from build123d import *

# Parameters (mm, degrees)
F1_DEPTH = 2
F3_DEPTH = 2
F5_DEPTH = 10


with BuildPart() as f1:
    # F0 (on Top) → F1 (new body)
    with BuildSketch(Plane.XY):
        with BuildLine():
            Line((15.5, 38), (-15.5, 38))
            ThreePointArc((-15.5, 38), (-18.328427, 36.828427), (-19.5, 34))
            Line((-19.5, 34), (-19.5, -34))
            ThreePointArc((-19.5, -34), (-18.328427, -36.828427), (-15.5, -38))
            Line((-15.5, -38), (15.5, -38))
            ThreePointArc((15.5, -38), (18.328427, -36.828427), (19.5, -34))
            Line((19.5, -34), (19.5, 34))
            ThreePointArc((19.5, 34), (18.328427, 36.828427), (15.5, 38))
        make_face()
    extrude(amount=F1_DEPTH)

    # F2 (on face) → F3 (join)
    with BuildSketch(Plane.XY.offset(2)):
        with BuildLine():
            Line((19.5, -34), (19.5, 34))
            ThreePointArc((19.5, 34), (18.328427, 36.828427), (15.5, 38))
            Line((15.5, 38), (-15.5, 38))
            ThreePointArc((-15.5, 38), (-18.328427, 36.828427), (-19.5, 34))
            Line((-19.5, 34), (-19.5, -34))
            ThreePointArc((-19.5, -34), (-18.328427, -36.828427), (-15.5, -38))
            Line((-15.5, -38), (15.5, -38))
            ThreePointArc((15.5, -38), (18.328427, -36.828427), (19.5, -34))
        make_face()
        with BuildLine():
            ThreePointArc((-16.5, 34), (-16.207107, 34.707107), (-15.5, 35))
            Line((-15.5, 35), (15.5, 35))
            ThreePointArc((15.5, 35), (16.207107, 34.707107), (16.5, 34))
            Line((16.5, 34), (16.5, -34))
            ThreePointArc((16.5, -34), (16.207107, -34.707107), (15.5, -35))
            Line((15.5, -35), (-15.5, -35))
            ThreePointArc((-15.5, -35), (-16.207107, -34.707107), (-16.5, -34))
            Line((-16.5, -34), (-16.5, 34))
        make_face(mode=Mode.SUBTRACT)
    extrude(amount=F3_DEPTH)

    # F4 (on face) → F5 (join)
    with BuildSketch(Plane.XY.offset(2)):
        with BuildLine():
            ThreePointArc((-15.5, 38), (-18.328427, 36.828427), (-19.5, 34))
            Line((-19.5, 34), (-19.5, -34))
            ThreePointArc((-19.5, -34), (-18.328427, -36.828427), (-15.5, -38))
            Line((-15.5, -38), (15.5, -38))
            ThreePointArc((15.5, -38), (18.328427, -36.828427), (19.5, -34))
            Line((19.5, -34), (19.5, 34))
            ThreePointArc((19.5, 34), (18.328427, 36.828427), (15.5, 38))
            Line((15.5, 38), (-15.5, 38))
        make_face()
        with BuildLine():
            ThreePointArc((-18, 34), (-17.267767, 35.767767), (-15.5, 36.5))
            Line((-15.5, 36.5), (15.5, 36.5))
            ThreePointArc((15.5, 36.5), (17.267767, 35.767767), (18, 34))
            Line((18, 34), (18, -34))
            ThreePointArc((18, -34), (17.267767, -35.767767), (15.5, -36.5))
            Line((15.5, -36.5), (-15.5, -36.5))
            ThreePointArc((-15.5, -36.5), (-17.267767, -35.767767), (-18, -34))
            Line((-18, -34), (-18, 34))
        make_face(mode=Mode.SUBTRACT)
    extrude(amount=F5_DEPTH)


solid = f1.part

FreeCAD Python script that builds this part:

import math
import FreeCAD as App
import Part
import Sketcher
from FreeCAD import Vector
Q = App.Units.Quantity

doc = App.newDocument("Part")
params = doc.addObject("Spreadsheet::Sheet", "Params")
for row, (alias, value) in enumerate([
    ("sketch1_radius", "4 mm"),
    ("sketch1_width", "31 mm"),
    ("sketch1_height", "68 mm"),
    ("pad1_length", "2 mm"),
    ("sketch2_radius", "4 mm"),
    ("sketch2_radius2", "0.999999 mm"),
    ("sketch2_width", "31 mm"),
    ("sketch2_height", "68 mm"),
    ("pad2_length", "2 mm"),
    ("sketch3_radius", "4 mm"),
    ("sketch3_radius2", "2.5 mm"),
    ("sketch3_width", "31 mm"),
    ("sketch3_height", "68 mm"),
    ("pad3_length", "10 mm"),
], start=1):
    params.set(f"A{row}", alias)
    params.set(f"B{row}", "=" + value)
    params.setAlias(f"B{row}", alias)

body = doc.addObject("PartDesign::Body", "Body")

# Sketch on XY plane
sketch1 = doc.addObject("Sketcher::SketchObject", "Sketch")
body.addObject(sketch1)
sketch1.AttachmentSupport = (doc.XY_Plane, [""])
sketch1.MapMode = "FlatFace"
sketch1.addGeometry([
    Part.LineSegment(Vector(15.5, 38, 0), Vector(-15.5, 38, 0)),  # 0
    Part.ArcOfCircle(Part.Circle(Vector(-15.5, 34, 0), Vector(0, 0, 1), 4), math.radians(90), math.radians(180)),  # 1
    Part.LineSegment(Vector(-19.5, 34, 0), Vector(-19.5, -34, 0)),  # 2
    Part.ArcOfCircle(Part.Circle(Vector(-15.5, -34, 0), Vector(0, 0, 1), 4), math.radians(-180), math.radians(-90)),  # 3
    Part.LineSegment(Vector(-15.5, -38, 0), Vector(15.5, -38, 0)),  # 4
    Part.ArcOfCircle(Part.Circle(Vector(15.5, -34, 0), Vector(0, 0, 1), 4), math.radians(-90), math.radians(0)),  # 5
    Part.LineSegment(Vector(19.5, -34, 0), Vector(19.5, 34, 0)),  # 6
    Part.ArcOfCircle(Part.Circle(Vector(15.5, 34, 0), Vector(0, 0, 1), 4), math.radians(0), math.radians(90)),  # 7
], False)
sketch1.addConstraint([
    Sketcher.Constraint("Tangent", 0, 2, 1, 1),
    Sketcher.Constraint("Tangent", 1, 2, 2, 1),
    Sketcher.Constraint("Tangent", 2, 2, 3, 1),
    Sketcher.Constraint("Tangent", 3, 2, 4, 1),
    Sketcher.Constraint("Tangent", 4, 2, 5, 1),
    Sketcher.Constraint("Tangent", 5, 2, 6, 1),
    Sketcher.Constraint("Tangent", 6, 2, 7, 1),
    Sketcher.Constraint("Tangent", 7, 2, 0, 1),
    Sketcher.Constraint("Horizontal", 0),
    Sketcher.Constraint("Vertical", 2),
    Sketcher.Constraint("Horizontal", 4),
    Sketcher.Constraint("Vertical", 6),
    Sketcher.Constraint("Equal", 1, 3),
    Sketcher.Constraint("Equal", 3, 5),
    Sketcher.Constraint("Equal", 5, 7),
    Sketcher.Constraint("Symmetric", 1, 3, 5, 3, -1, 1),
    Sketcher.Constraint("Radius", 1, Q("4 mm")),
    Sketcher.Constraint("DistanceX", 0, 2, 0, 1, Q("31 mm")),
    Sketcher.Constraint("DistanceY", 2, 2, 2, 1, Q("68 mm")),
])
sketch1.setExpression("Constraints[16]", "Params.sketch1_radius")
sketch1.setExpression("Constraints[17]", "Params.sketch1_width")
sketch1.setExpression("Constraints[18]", "Params.sketch1_height")
pad1 = doc.addObject("PartDesign::Pad", "Pad")
body.addObject(pad1)
pad1.Profile = sketch1
pad1.setExpression("Length", "Params.pad1_length")

# Sketch on XY plane
sketch2 = doc.addObject("Sketcher::SketchObject", "Sketch001")
body.addObject(sketch2)
sketch2.AttachmentSupport = (doc.XY_Plane, [""])
sketch2.MapMode = "FlatFace"
sketch2.AttachmentOffset = App.Placement(Vector(0, 0, 2), App.Rotation())
sketch2.addGeometry([
    Part.LineSegment(Vector(19.5, -34, 0), Vector(19.5, 34, 0)),  # 0
    Part.ArcOfCircle(Part.Circle(Vector(15.5, 34, 0), Vector(0, 0, 1), 4), math.radians(0), math.radians(90)),  # 1
    Part.LineSegment(Vector(15.5, 38, 0), Vector(-15.5, 38, 0)),  # 2
    Part.ArcOfCircle(Part.Circle(Vector(-15.5, 34, 0), Vector(0, 0, 1), 4), math.radians(90), math.radians(180)),  # 3
    Part.LineSegment(Vector(-19.5, 34, 0), Vector(-19.5, -34, 0)),  # 4
    Part.ArcOfCircle(Part.Circle(Vector(-15.5, -34, 0), Vector(0, 0, 1), 4), math.radians(-180), math.radians(-90)),  # 5
    Part.LineSegment(Vector(-15.5, -38, 0), Vector(15.5, -38, 0)),  # 6
    Part.ArcOfCircle(Part.Circle(Vector(15.5, -34, 0), Vector(0, 0, 1), 4), math.radians(-90), math.radians(0)),  # 7
    Part.LineSegment(Vector(-16.5, -34, 0), Vector(-16.5, 34, 0)),  # 8
    Part.ArcOfCircle(Part.Circle(Vector(-15.5, 34, 0), Vector(0, 0, 1), 1), math.radians(90), math.radians(180)),  # 9
    Part.LineSegment(Vector(-15.5, 35, 0), Vector(15.5, 35, 0)),  # 10
    Part.ArcOfCircle(Part.Circle(Vector(15.5, 34, 0), Vector(0, 0, 1), 1), math.radians(0), math.radians(90)),  # 11
    Part.LineSegment(Vector(16.5, 34, 0), Vector(16.5, -34, 0)),  # 12
    Part.ArcOfCircle(Part.Circle(Vector(15.5, -34, 0), Vector(0, 0, 1), 1), math.radians(-90), math.radians(0)),  # 13
    Part.LineSegment(Vector(15.5, -35, 0), Vector(-15.5, -35, 0)),  # 14
    Part.ArcOfCircle(Part.Circle(Vector(-15.5, -34, 0), Vector(0, 0, 1), 1), math.radians(180), math.radians(270)),  # 15
], False)
sketch2.addConstraint([
    Sketcher.Constraint("Tangent", 0, 2, 1, 1),
    Sketcher.Constraint("Tangent", 1, 2, 2, 1),
    Sketcher.Constraint("Tangent", 2, 2, 3, 1),
    Sketcher.Constraint("Tangent", 3, 2, 4, 1),
    Sketcher.Constraint("Tangent", 4, 2, 5, 1),
    Sketcher.Constraint("Tangent", 5, 2, 6, 1),
    Sketcher.Constraint("Tangent", 6, 2, 7, 1),
    Sketcher.Constraint("Tangent", 7, 2, 0, 1),
    Sketcher.Constraint("Tangent", 8, 2, 9, 2),
    Sketcher.Constraint("Tangent", 9, 1, 10, 1),
    Sketcher.Constraint("Tangent", 10, 2, 11, 2),
    Sketcher.Constraint("Tangent", 11, 1, 12, 1),
    Sketcher.Constraint("Tangent", 12, 2, 13, 2),
    Sketcher.Constraint("Tangent", 13, 1, 14, 1),
    Sketcher.Constraint("Tangent", 14, 2, 15, 2),
    Sketcher.Constraint("Tangent", 15, 1, 8, 1),
    Sketcher.Constraint("Vertical", 0),
    Sketcher.Constraint("Horizontal", 2),
    Sketcher.Constraint("Vertical", 4),
    Sketcher.Constraint("Horizontal", 6),
    Sketcher.Constraint("Vertical", 8),
    Sketcher.Constraint("Horizontal", 10),
    Sketcher.Constraint("Vertical", 12),
    Sketcher.Constraint("Horizontal", 14),
    Sketcher.Constraint("Coincident", 9, 3, 3, 3),
    Sketcher.Constraint("Coincident", 11, 3, 1, 3),
    Sketcher.Constraint("Coincident", 13, 3, 7, 3),
    Sketcher.Constraint("Equal", 1, 3),
    Sketcher.Constraint("Equal", 3, 5),
    Sketcher.Constraint("Equal", 5, 7),
    Sketcher.Constraint("Equal", 13, 15),
    Sketcher.Constraint("Symmetric", 1, 3, 5, 3, -1, 1),
    Sketcher.Constraint("Radius", 1, Q("4 mm")),
    Sketcher.Constraint("Radius", 9, Q("0.999999 mm")),
    Sketcher.Constraint("DistanceX", 2, 2, 2, 1, Q("31 mm")),
    Sketcher.Constraint("DistanceY", 0, 1, 0, 2, Q("68 mm")),
])
sketch2.setExpression("Constraints[32]", "Params.sketch2_radius")
sketch2.setExpression("Constraints[33]", "Params.sketch2_radius2")
sketch2.setExpression("Constraints[34]", "Params.sketch2_width")
sketch2.setExpression("Constraints[35]", "Params.sketch2_height")
pad2 = doc.addObject("PartDesign::Pad", "Pad001")
body.addObject(pad2)
pad2.Profile = sketch2
pad2.setExpression("Length", "Params.pad2_length")

# Sketch on XY plane
sketch3 = doc.addObject("Sketcher::SketchObject", "Sketch002")
body.addObject(sketch3)
sketch3.AttachmentSupport = (doc.XY_Plane, [""])
sketch3.MapMode = "FlatFace"
sketch3.AttachmentOffset = App.Placement(Vector(0, 0, 2), App.Rotation())
sketch3.addGeometry([
    Part.ArcOfCircle(Part.Circle(Vector(-15.5, 34, 0), Vector(0, 0, 1), 4), math.radians(90), math.radians(180)),  # 0
    Part.LineSegment(Vector(-19.5, 34, 0), Vector(-19.5, -34, 0)),  # 1
    Part.ArcOfCircle(Part.Circle(Vector(-15.5, -34, 0), Vector(0, 0, 1), 4), math.radians(-180), math.radians(-90)),  # 2
    Part.LineSegment(Vector(-15.5, -38, 0), Vector(15.5, -38, 0)),  # 3
    Part.ArcOfCircle(Part.Circle(Vector(15.5, -34, 0), Vector(0, 0, 1), 4), math.radians(-90), math.radians(0)),  # 4
    Part.LineSegment(Vector(19.5, -34, 0), Vector(19.5, 34, 0)),  # 5
    Part.ArcOfCircle(Part.Circle(Vector(15.5, 34, 0), Vector(0, 0, 1), 4), math.radians(0), math.radians(90)),  # 6
    Part.LineSegment(Vector(15.5, 38, 0), Vector(-15.5, 38, 0)),  # 7
    Part.LineSegment(Vector(-18, -34, 0), Vector(-18, 34, 0)),  # 8
    Part.ArcOfCircle(Part.Circle(Vector(-15.5, 34, 0), Vector(0, 0, 1), 2.5), math.radians(90), math.radians(180)),  # 9
    Part.LineSegment(Vector(-15.5, 36.5, 0), Vector(15.5, 36.5, 0)),  # 10
    Part.ArcOfCircle(Part.Circle(Vector(15.5, 34, 0), Vector(0, 0, 1), 2.5), math.radians(0), math.radians(90)),  # 11
    Part.LineSegment(Vector(18, 34, 0), Vector(18, -34, 0)),  # 12
    Part.ArcOfCircle(Part.Circle(Vector(15.5, -34, 0), Vector(0, 0, 1), 2.5), math.radians(-90), math.radians(0)),  # 13
    Part.LineSegment(Vector(15.5, -36.5, 0), Vector(-15.5, -36.5, 0)),  # 14
    Part.ArcOfCircle(Part.Circle(Vector(-15.5, -34, 0), Vector(0, 0, 1), 2.5), math.radians(180), math.radians(270)),  # 15
], False)
sketch3.addConstraint([
    Sketcher.Constraint("Tangent", 0, 2, 1, 1),
    Sketcher.Constraint("Tangent", 1, 2, 2, 1),
    Sketcher.Constraint("Tangent", 2, 2, 3, 1),
    Sketcher.Constraint("Tangent", 3, 2, 4, 1),
    Sketcher.Constraint("Tangent", 4, 2, 5, 1),
    Sketcher.Constraint("Tangent", 5, 2, 6, 1),
    Sketcher.Constraint("Tangent", 6, 2, 7, 1),
    Sketcher.Constraint("Tangent", 7, 2, 0, 1),
    Sketcher.Constraint("Tangent", 8, 2, 9, 2),
    Sketcher.Constraint("Tangent", 9, 1, 10, 1),
    Sketcher.Constraint("Tangent", 10, 2, 11, 2),
    Sketcher.Constraint("Tangent", 11, 1, 12, 1),
    Sketcher.Constraint("Tangent", 12, 2, 13, 2),
    Sketcher.Constraint("Tangent", 13, 1, 14, 1),
    Sketcher.Constraint("Tangent", 14, 2, 15, 2),
    Sketcher.Constraint("Tangent", 15, 1, 8, 1),
    Sketcher.Constraint("Vertical", 1),
    Sketcher.Constraint("Horizontal", 3),
    Sketcher.Constraint("Vertical", 5),
    Sketcher.Constraint("Horizontal", 7),
    Sketcher.Constraint("Vertical", 8),
    Sketcher.Constraint("Horizontal", 10),
    Sketcher.Constraint("Vertical", 12),
    Sketcher.Constraint("Horizontal", 14),
    Sketcher.Constraint("Coincident", 9, 3, 0, 3),
    Sketcher.Constraint("Coincident", 11, 3, 6, 3),
    Sketcher.Constraint("Coincident", 13, 3, 4, 3),
    Sketcher.Constraint("Equal", 0, 2),
    Sketcher.Constraint("Equal", 2, 4),
    Sketcher.Constraint("Equal", 4, 6),
    Sketcher.Constraint("Equal", 13, 15),
    Sketcher.Constraint("Symmetric", 0, 3, 4, 3, -1, 1),
    Sketcher.Constraint("Radius", 0, Q("4 mm")),
    Sketcher.Constraint("Radius", 9, Q("2.5 mm")),
    Sketcher.Constraint("DistanceX", 3, 1, 3, 2, Q("31 mm")),
    Sketcher.Constraint("DistanceY", 1, 2, 1, 1, Q("68 mm")),
])
sketch3.setExpression("Constraints[32]", "Params.sketch3_radius")
sketch3.setExpression("Constraints[33]", "Params.sketch3_radius2")
sketch3.setExpression("Constraints[34]", "Params.sketch3_width")
sketch3.setExpression("Constraints[35]", "Params.sketch3_height")
pad3 = doc.addObject("PartDesign::Pad", "Pad002")
body.addObject(pad3)
pad3.Profile = sketch3
pad3.setExpression("Length", "Params.pad3_length")

doc.recompute()
